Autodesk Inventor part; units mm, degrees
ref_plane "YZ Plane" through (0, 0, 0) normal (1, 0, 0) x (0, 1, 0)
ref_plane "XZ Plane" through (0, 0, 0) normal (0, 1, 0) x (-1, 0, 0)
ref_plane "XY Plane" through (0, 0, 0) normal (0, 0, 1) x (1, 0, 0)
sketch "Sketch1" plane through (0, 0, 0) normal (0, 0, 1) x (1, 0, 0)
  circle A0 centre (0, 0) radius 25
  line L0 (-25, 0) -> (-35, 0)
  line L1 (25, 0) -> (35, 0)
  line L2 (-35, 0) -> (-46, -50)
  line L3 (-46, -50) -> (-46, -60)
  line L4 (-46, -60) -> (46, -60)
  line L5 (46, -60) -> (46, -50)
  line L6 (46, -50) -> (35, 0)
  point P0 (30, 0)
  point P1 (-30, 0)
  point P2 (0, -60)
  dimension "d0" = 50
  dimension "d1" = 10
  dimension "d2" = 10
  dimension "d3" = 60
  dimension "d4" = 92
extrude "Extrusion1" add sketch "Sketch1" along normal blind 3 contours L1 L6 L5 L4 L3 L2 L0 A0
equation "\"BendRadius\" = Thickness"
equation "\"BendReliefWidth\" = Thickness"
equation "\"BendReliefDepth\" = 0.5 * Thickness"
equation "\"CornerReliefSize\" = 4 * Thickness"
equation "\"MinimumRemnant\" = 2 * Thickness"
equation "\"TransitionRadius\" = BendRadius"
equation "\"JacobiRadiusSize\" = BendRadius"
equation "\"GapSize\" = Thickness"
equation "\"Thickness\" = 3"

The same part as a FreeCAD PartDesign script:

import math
import FreeCAD as App
import Part
import Sketcher
from FreeCAD import Vector
Q = App.Units.Quantity

doc = App.newDocument("Part")
body = doc.addObject("PartDesign::Body", "Body")

# Sketch on XY plane
sketch1 = doc.addObject("Sketcher::SketchObject", "Sketch")
body.addObject(sketch1)
sketch1.AttachmentSupport = (doc.XY_Plane, [""])
sketch1.MapMode = "FlatFace"
sketch1.addGeometry(Part.LineSegment(Vector(35, 0, 0), Vector(25, 0, 0)), False)
sketch1.addGeometry(Part.ArcOfCircle(Part.Circle(Vector(0, 0, 0), Vector(0, 0, 1), 25), math.radians(180), math.radians(360)), False)
sketch1.addGeometry(Part.LineSegment(Vector(-25, 0, 0), Vector(-35, 0, 0)), False)
sketch1.addGeometry(Part.LineSegment(Vector(-35, 0, 0), Vector(-46, -50, 0)), False)
sketch1.addGeometry(Part.LineSegment(Vector(-46, -50, 0), Vector(-46, -60, 0)), False)
sketch1.addGeometry(Part.LineSegment(Vector(-46, -60, 0), Vector(46, -60, 0)), False)
sketch1.addGeometry(Part.LineSegment(Vector(46, -60, 0), Vector(46, -50, 0)), False)
sketch1.addGeometry(Part.LineSegment(Vector(46, -50, 0), Vector(35, 0, 0)), False)
sketch1.addConstraint(Sketcher.Constraint("Coincident", 0, 2, 1, 2))
sketch1.addConstraint(Sketcher.Constraint("Coincident", 1, 1, 2, 1))
sketch1.addConstraint(Sketcher.Constraint("Coincident", 2, 2, 3, 1))
sketch1.addConstraint(Sketcher.Constraint("Coincident", 3, 2, 4, 1))
sketch1.addConstraint(Sketcher.Constraint("Coincident", 4, 2, 5, 1))
sketch1.addConstraint(Sketcher.Constraint("Coincident", 5, 2, 6, 1))
sketch1.addConstraint(Sketcher.Constraint("Coincident", 6, 2, 7, 1))
sketch1.addConstraint(Sketcher.Constraint("Coincident", 7, 2, 0, 1))
sketch1.addConstraint(Sketcher.Constraint("Horizontal", 0))
sketch1.addConstraint(Sketcher.Constraint("Horizontal", 2))
sketch1.addConstraint(Sketcher.Constraint("Vertical", 4))
sketch1.addConstraint(Sketcher.Constraint("Horizontal", 5))
sketch1.addConstraint(Sketcher.Constraint("Vertical", 6))
sketch1.addConstraint(Sketcher.Constraint("Coincident", 1, 3, -1, 1))
sketch1.addConstraint(Sketcher.Constraint("Symmetric", 2, 2, 7, 2, -1, 1))
sketch1.addConstraint(Sketcher.Constraint("Symmetric", 3, 2, 6, 2, -2))
sketch1.addConstraint(Sketcher.Constraint("PointOnObject", 0, 2, -1))
sketch1.addConstraint(Sketcher.Constraint("Equal", 2, 4))
sketch1.addConstraint(Sketcher.Constraint("Radius", 1, Q("25 mm")))
sketch1.addConstraint(Sketcher.Constraint("DistanceX", 0, 2, 0, 1, Q("10 mm")))
sketch1.addConstraint(Sketcher.Constraint("DistanceX", 5, 1, 5, 2, Q("92 mm")))
sketch1.addConstraint(Sketcher.Constraint("DistanceY", 3, 2, -1, 1, Q("50 mm")))
pad1 = doc.addObject("PartDesign::Pad", "Pad")
body.addObject(pad1)
pad1.Profile = sketch1
pad1.Length = 3

doc.recompute()
